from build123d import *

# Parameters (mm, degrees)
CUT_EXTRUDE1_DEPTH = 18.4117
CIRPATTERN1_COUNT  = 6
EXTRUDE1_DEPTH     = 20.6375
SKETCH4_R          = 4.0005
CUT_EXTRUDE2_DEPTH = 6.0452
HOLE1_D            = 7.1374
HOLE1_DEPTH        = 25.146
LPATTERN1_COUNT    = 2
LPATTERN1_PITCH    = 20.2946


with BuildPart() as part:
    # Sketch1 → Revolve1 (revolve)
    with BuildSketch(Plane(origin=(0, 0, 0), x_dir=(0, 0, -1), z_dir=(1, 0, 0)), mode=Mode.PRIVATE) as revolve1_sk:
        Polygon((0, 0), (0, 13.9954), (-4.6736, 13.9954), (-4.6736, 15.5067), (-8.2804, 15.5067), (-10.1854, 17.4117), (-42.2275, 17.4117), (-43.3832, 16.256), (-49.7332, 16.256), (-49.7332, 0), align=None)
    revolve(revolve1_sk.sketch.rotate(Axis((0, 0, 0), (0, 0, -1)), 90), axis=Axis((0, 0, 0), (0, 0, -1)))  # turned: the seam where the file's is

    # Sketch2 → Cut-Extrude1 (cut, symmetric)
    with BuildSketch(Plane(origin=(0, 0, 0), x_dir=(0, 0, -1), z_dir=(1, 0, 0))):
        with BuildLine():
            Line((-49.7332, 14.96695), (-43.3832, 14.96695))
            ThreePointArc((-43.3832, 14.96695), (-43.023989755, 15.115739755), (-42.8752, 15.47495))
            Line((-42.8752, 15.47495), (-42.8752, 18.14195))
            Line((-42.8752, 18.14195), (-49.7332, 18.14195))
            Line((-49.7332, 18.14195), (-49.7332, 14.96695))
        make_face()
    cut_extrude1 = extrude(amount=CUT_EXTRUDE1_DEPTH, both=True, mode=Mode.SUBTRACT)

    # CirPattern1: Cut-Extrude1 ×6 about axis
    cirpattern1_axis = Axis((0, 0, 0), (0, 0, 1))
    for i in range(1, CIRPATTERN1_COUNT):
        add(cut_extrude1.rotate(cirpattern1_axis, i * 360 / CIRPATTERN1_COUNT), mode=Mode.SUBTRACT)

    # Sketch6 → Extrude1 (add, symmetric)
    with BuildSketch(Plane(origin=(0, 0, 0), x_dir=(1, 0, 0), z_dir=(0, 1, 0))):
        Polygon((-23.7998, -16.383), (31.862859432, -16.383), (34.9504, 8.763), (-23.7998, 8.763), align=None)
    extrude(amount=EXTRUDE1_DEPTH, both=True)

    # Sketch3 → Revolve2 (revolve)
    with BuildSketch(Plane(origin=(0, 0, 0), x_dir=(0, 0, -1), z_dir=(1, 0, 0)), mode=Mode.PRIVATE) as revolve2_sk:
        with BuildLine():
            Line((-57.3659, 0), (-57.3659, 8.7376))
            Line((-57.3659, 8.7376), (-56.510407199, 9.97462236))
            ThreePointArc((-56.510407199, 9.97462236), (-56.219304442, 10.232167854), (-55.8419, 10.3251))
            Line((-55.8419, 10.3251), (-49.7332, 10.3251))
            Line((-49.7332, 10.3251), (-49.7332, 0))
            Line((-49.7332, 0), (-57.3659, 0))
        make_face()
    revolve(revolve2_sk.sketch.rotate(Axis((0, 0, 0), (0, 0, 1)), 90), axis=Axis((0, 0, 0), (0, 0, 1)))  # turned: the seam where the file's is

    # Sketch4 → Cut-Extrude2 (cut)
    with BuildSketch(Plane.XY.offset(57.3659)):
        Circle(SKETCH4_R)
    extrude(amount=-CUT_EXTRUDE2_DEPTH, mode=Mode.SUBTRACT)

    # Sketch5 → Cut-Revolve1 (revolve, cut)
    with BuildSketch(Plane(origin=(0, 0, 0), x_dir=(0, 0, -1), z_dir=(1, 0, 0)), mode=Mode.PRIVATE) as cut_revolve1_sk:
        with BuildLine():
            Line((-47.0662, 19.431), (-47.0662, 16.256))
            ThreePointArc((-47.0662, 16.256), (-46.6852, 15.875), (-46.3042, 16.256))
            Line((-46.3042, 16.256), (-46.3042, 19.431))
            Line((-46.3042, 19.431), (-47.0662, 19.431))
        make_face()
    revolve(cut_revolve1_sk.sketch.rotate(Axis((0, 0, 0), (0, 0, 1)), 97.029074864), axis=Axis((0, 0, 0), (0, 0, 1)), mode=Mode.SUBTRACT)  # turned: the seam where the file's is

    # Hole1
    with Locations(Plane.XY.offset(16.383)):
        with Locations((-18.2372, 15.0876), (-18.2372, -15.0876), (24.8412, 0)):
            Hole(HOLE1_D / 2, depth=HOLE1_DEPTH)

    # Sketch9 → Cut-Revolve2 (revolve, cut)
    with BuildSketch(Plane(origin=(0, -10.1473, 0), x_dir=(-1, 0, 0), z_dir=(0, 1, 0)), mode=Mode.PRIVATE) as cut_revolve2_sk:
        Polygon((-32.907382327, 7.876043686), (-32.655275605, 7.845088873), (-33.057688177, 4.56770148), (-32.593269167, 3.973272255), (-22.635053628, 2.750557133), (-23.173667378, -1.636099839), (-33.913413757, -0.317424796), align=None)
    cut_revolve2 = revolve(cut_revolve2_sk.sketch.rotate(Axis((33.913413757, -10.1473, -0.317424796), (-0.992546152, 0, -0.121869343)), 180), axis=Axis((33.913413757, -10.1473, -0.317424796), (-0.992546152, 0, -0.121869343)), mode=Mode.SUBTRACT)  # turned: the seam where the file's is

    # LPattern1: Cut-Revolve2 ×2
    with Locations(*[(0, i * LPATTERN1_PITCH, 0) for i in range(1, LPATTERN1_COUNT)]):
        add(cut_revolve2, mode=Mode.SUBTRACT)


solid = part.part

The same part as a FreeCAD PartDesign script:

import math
import FreeCAD as App
import Part
import Sketcher
Q = App.Units.Quantity

doc = App.newDocument("Part")
body = doc.addObject("PartDesign::Body", "Body")

# Sketch on YZ plane
sketch1 = body.newObject("Sketcher::SketchObject", "Sketch")
sketch1.AttachmentSupport = (doc.getObject("YZ_Plane"), [""])
sketch1.MapMode = "FlatFace"
sketch1.addGeometry(Part.LineSegment(App.Vector(0, 0, 0), App.Vector(14, 0, 0)), False)
sketch1.addGeometry(Part.LineSegment(App.Vector(14, 0, 0), App.Vector(14, 4.7, 0)), False)
sketch1.addGeometry(Part.LineSegment(App.Vector(14, 4.7, 0), App.Vector(15.5, 4.7, 0)), False)
sketch1.addGeometry(Part.LineSegment(App.Vector(15.5, 4.7, 0), App.Vector(15.5, 8.3, 0)), False)
sketch1.addGeometry(Part.LineSegment(App.Vector(15.5, 8.3, 0), App.Vector(17.4, 10.2, 0)), False)
sketch1.addGeometry(Part.LineSegment(App.Vector(17.4, 10.2, 0), App.Vector(17.4, 42.2, 0)), False)
sketch1.addGeometry(Part.LineSegment(App.Vector(17.4, 42.2, 0), App.Vector(16.3, 43.4, 0)), False)
sketch1.addGeometry(Part.LineSegment(App.Vector(16.3, 43.4, 0), App.Vector(16.3, 49.7, 0)), False)
sketch1.addGeometry(Part.LineSegment(App.Vector(16.3, 49.7, 0), App.Vector(0, 49.7, 0)), False)
sketch1.addGeometry(Part.LineSegment(App.Vector(0, 49.7, 0), App.Vector(0, 0, 0)), False)
sketch1.addConstraint(Sketcher.Constraint("Coincident", 0, 2, 1, 1))
sketch1.addConstraint(Sketcher.Constraint("Coincident", 1, 2, 2, 1))
sketch1.addConstraint(Sketcher.Constraint("Coincident", 2, 2, 3, 1))
sketch1.addConstraint(Sketcher.Constraint("Coincident", 3, 2, 4, 1))
sketch1.addConstraint(Sketcher.Constraint("Coincident", 4, 2, 5, 1))
sketch1.addConstraint(Sketcher.Constraint("Coincident", 5, 2, 6, 1))
sketch1.addConstraint(Sketcher.Constraint("Coincident", 6, 2, 7, 1))
sketch1.addConstraint(Sketcher.Constraint("Coincident", 7, 2, 8, 1))
sketch1.addConstraint(Sketcher.Constraint("Coincident", 8, 2, 9, 1))
sketch1.addConstraint(Sketcher.Constraint("Coincident", 9, 2, 0, 1))
sketch1.addConstraint(Sketcher.Constraint("Horizontal", 0))
sketch1.addConstraint(Sketcher.Constraint("Vertical", 1))
sketch1.addConstraint(Sketcher.Constraint("Horizontal", 2))
sketch1.addConstraint(Sketcher.Constraint("Vertical", 3))
sketch1.addConstraint(Sketcher.Constraint("Vertical", 5))
sketch1.addConstraint(Sketcher.Constraint("Vertical", 7))
sketch1.addConstraint(Sketcher.Constraint("Horizontal", 8))
sketch1.addConstraint(Sketcher.Constraint("Vertical", 9))
sketch1.addConstraint(Sketcher.Constraint("Coincident", 9, 2, -1, 1))
sketch1.addConstraint(Sketcher.Constraint("Perpendicular", 4, 6))
sketch1.addConstraint(Sketcher.Constraint("Angle", 4, Q("45 deg")))
sketch1.addConstraint(Sketcher.Constraint("DistanceX", 8, 2, 8, 1, Q("0.64 in")))
sketch1.addConstraint(Sketcher.Constraint("DistanceY", 7, 1, 7, 2, Q("0.25 in")))
sketch1.addConstraint(Sketcher.Constraint("DistanceX", 0, 1, 0, 2, Q("0.551 in")))
sketch1.addConstraint(Sketcher.Constraint("DistanceY", 1, 1, 1, 2, Q("0.184 in")))
sketch1.addConstraint(Sketcher.Constraint("DistanceY", 3, 1, 3, 2, Q("0.142 in")))
sketch1.addConstraint(Sketcher.Constraint("DistanceY", 9, 2, 9, 1, Q("1.958 in")))
sketch1.addConstraint(Sketcher.Constraint("DistanceX", 2, 1, 2, 2, Q("0.0595 in")))
sketch1.addConstraint(Sketcher.Constraint("DistanceY", 5, 1, 5, 2, Q("1.2615 in")))
revolution = body.newObject("PartDesign::Revolution", "Revolution")
revolution.Profile = sketch1
revolution.ReferenceAxis = (sketch1, ["V_Axis"])
revolution.Angle = 360

# Sketch on YZ plane
sketch2 = body.newObject("Sketcher::SketchObject", "Sketch001")
sketch2.AttachmentSupport = (doc.getObject("YZ_Plane"), [""])
sketch2.MapMode = "FlatFace"
sketch2.addGeometry(Part.LineSegment(App.Vector(15, 49.7, 0), App.Vector(15, 43.4, 0)), False)
sketch2.addGeometry(Part.ArcOfCircle(Part.Circle(App.Vector(15.5, 43.4, 0), App.Vector(0, 0, 1), 0.5), math.radians(180), math.radians(270)), False)
sketch2.addGeometry(Part.LineSegment(App.Vector(15.5, 42.9, 0), App.Vector(18.1, 42.9, 0)), False)
sketch2.addGeometry(Part.LineSegment(App.Vector(18.1, 42.9, 0), App.Vector(18.1, 49.7, 0)), False)
sketch2.addGeometry(Part.LineSegment(App.Vector(18.1, 49.7, 0), App.Vector(15, 49.7, 0)), False)
sketch2.addConstraint(Sketcher.Constraint("Tangent", 0, 2, 1, 1))
sketch2.addConstraint(Sketcher.Constraint("Tangent", 1, 2, 2, 1))
sketch2.addConstraint(Sketcher.Constraint("Coincident", 2, 2, 3, 1))
sketch2.addConstraint(Sketcher.Constraint("Coincident", 3, 2, 4, 1))
sketch2.addConstraint(Sketcher.Constraint("Coincident", 4, 2, 0, 1))
sketch2.addConstraint(Sketcher.Constraint("Vertical", 0))
sketch2.addConstraint(Sketcher.Constraint("Horizontal", 2))
sketch2.addConstraint(Sketcher.Constraint("Vertical", 3))
sketch2.addConstraint(Sketcher.Constraint("Horizontal", 4))
sketch2.addConstraint(Sketcher.Constraint("Radius", 1, Q("0.02 in")))
sketch2.addConstraint(Sketcher.Constraint("DistanceY", 0, 2, 0, 1, Q("0.25 in")))
sketch2.addConstraint(Sketcher.Constraint("DistanceX", 2, 1, 2, 2, Q("0.105 in")))
sketch2.addConstraint(Sketcher.Constraint("DistanceY", -1, 1, 1, 3, Q("1.708 in")))
sketch2.addConstraint(Sketcher.Constraint("DistanceX", -1, 1, 1, 3, 15.47495))
pocket1 = body.newObject("PartDesign::Pocket", "Pocket")
pocket1.Profile = sketch2
pocket1.Length = 36.8234
pocket1.Midplane = True
doc.recompute()

polarpattern = body.newObject("PartDesign::PolarPattern", "PolarPattern")
polarpattern.Originals = [pocket1]
polarpattern.Axis = (doc.getObject("Z_Axis"), [""])
polarpattern.Angle = 360
polarpattern.Occurrences = 6
body.Tip = polarpattern

# Sketch on XZ plane
sketch3 = body.newObject("Sketcher::SketchObject", "Sketch002")
sketch3.AttachmentSupport = (doc.getObject("XZ_Plane"), [""])
sketch3.MapMode = "FlatFace"
sketch3.addGeometry(Part.LineSegment(App.Vector(-24, 16, 0), App.Vector(32, 16, 0)), False)
sketch3.addGeometry(Part.LineSegment(App.Vector(32, 16, 0), App.Vector(35, -9, 0)), False)
sketch3.addGeometry(Part.LineSegment(App.Vector(35, -9, 0), App.Vector(-24, -9, 0)), False)
sketch3.addGeometry(Part.LineSegment(App.Vector(-24, -9, 0), App.Vector(-24, 16, 0)), False)
sketch3.addConstraint(Sketcher.Constraint("Coincident", 0, 2, 1, 1))
sketch3.addConstraint(Sketcher.Constraint("Coincident", 1, 2, 2, 1))
sketch3.addConstraint(Sketcher.Constraint("Coincident", 2, 2, 3, 1))
sketch3.addConstraint(Sketcher.Constraint("Coincident", 3, 2, 0, 1))
sketch3.addConstraint(Sketcher.Constraint("Horizontal", 0))
sketch3.addConstraint(Sketcher.Constraint("Horizontal", 2))
sketch3.addConstraint(Sketcher.Constraint("Vertical", 3))
sketch3.addConstraint(Sketcher.Constraint("Angle", 1, Q("-83 deg")))
sketch3.addConstraint(Sketcher.Constraint("DistanceY", 3, 1, 3, 2, Q("0.99 in")))
sketch3.addConstraint(Sketcher.Constraint("DistanceX", 2, 2, 2, 1, Q("2.313 in")))
sketch3.addConstraint(Sketcher.Constraint("DistanceY", -1, 1, 0, 2, Q("0.645 in")))
sketch3.addConstraint(Sketcher.Constraint("DistanceX", -1, 1, 1, 2, Q("1.376 in")))
pad1 = body.newObject("PartDesign::Pad", "Pad")
pad1.Profile = sketch3
pad1.Length = Q("1.625 in")
pad1.Midplane = True

# Sketch on YZ plane
sketch4 = body.newObject("Sketcher::SketchObject", "Sketch003")
sketch4.AttachmentSupport = (doc.getObject("YZ_Plane"), [""])
sketch4.MapMode = "FlatFace"
sketch4.addGeometry(Part.LineSegment(App.Vector(8.7, 57.4, 0), App.Vector(0, 57.4, 0)), False)
sketch4.addGeometry(Part.LineSegment(App.Vector(0, 57.4, 0), App.Vector(0, 49.7, 0)), False)
sketch4.addGeometry(Part.LineSegment(App.Vector(0, 49.7, 0), App.Vector(10.3, 49.7, 0)), False)
sketch4.addGeometry(Part.LineSegment(App.Vector(10.3, 49.7, 0), App.Vector(10.3, 55.8, 0)), False)
sketch4.addGeometry(Part.ArcOfCircle(Part.Circle(App.Vector(9.5, 55.8, 0), App.Vector(0, 0, 1), 0.8), math.radians(0), math.radians(55)), False)
sketch4.addGeometry(Part.LineSegment(App.Vector(10, 56.5, 0), App.Vector(8.7, 57.4, 0)), False)
sketch4.addConstraint(Sketcher.Constraint("Coincident", 0, 2, 1, 1))
sketch4.addConstraint(Sketcher.Constraint("Coincident", 1, 2, 2, 1))
sketch4.addConstraint(Sketcher.Constraint("Coincident", 2, 2, 3, 1))
sketch4.addConstraint(Sketcher.Constraint("Tangent", 3, 2, 4, 1))
sketch4.addConstraint(Sketcher.Constraint("Tangent", 4, 2, 5, 1))
sketch4.addConstraint(Sketcher.Constraint("Coincident", 5, 2, 0, 1))
sketch4.addConstraint(Sketcher.Constraint("Horizontal", 0))
sketch4.addConstraint(Sketcher.Constraint("Vertical", 1))
sketch4.addConstraint(Sketcher.Constraint("Horizontal", 2))
sketch4.addConstraint(Sketcher.Constraint("Vertical", 3))
sketch4.addConstraint(Sketcher.Constraint("PointOnObject", 0, 2, -2))
sketch4.addConstraint(Sketcher.Constraint("Radius", 4, Q("0.032 in")))
sketch4.addConstraint(Sketcher.Constraint("DistanceX", 0, 2, 0, 1, Q("0.344 in")))
sketch4.addConstraint(Sketcher.Constraint("DistanceY", 4, 3, 0, 2, Q("0.06 in")))
sketch4.addConstraint(Sketcher.Constraint("DistanceX", 2, 1, 2, 2, Q("0.4065 in")))
sketch4.addConstraint(Sketcher.Constraint("DistanceY", 1, 2, 1, 1, Q("0.3005 in")))
sketch4.addConstraint(Sketcher.Constraint("DistanceY", -1, 1, 1, 2, Q("1.958 in")))
revolution2 = body.newObject("PartDesign::Revolution", "Revolution001")
revolution2.Profile = sketch4
revolution2.ReferenceAxis = (sketch4, ["V_Axis"])
revolution2.Angle = 360

# Sketch on XY plane
sketch5 = body.newObject("Sketcher::SketchObject", "Sketch004")
sketch5.AttachmentSupport = (doc.getObject("XY_Plane"), [""])
sketch5.MapMode = "FlatFace"
sketch5.AttachmentOffset = App.Placement(App.Vector(0, 0, 2.2585 * 25.4), App.Rotation())
sketch5.addGeometry(Part.Circle(App.Vector(0, 0, 0), App.Vector(0, 0, 1), 4), False)
sketch5.addConstraint(Sketcher.Constraint("Coincident", 0, 3, -1, 1))
sketch5.addConstraint(Sketcher.Constraint("Diameter", 0, Q("0.315 in")))
pocket2 = body.newObject("PartDesign::Pocket", "Pocket001")
pocket2.Profile = sketch5
pocket2.Length = Q("0.238 in")

# Sketch on YZ plane
sketch6 = body.newObject("Sketcher::SketchObject", "Sketch005")
sketch6.AttachmentSupport = (doc.getObject("YZ_Plane"), [""])
sketch6.MapMode = "FlatFace"
sketch6.addGeometry(Part.LineSegment(App.Vector(19.43, 47.07, 0), App.Vector(16.26, 47.07, 0)), False)
sketch6.addGeometry(Part.ArcOfCircle(Part.Circle(App.Vector(16.26, 46.69, 0), App.Vector(0, 0, 1), 0.38), math.radians(90), math.radians(270)), False)
sketch6.addGeometry(Part.LineSegment(App.Vector(16.26, 46.3, 0), App.Vector(19.43, 46.3, 0)), False)
sketch6.addGeometry(Part.LineSegment(App.Vector(19.43, 46.3, 0), App.Vector(19.43, 47.07, 0)), False)
sketch6.addConstraint(Sketcher.Constraint("Tangent", 0, 2, 1, 1))
sketch6.addConstraint(Sketcher.Constraint("Tangent", 1, 2, 2, 1))
sketch6.addConstraint(Sketcher.Constraint("Coincident", 2, 2, 3, 1))
sketch6.addConstraint(Sketcher.Constraint("Coincident", 3, 2, 0, 1))
sketch6.addConstraint(Sketcher.Constraint("Horizontal", 0))
sketch6.addConstraint(Sketcher.Constraint("Horizontal", 2))
sketch6.addConstraint(Sketcher.Constraint("Vertical", 3))
sketch6.addConstraint(Sketcher.Constraint("Radius", 1, Q("0.015 in")))
sketch6.addConstraint(Sketcher.Constraint("DistanceX", 0, 2, 0, 1, Q("0.125 in")))
sketch6.addConstraint(Sketcher.Constraint("DistanceX", -1, 1, 1, 3, Q("0.64 in")))
sketch6.addConstraint(Sketcher.Constraint("DistanceY", -1, 1, 1, 3, Q("1.838 in")))
groove = body.newObject("PartDesign::Groove", "Groove")
groove.Profile = sketch6
groove.ReferenceAxis = (sketch6, ["V_Axis"])
groove.Angle = 360

# Sketch on XY plane
sketch7 = body.newObject("Sketcher::SketchObject", "Sketch006")
sketch7.AttachmentSupport = (doc.getObject("XY_Plane"), [""])
sketch7.MapMode = "FlatFace"
sketch7.AttachmentOffset = App.Placement(App.Vector(0, 0, 0.645 * 25.4), App.Rotation())
sketch7.addGeometry(Part.Circle(App.Vector(-18.2, 15.1, 0), App.Vector(0, 0, 1), 3.6), False)
sketch7.addGeometry(Part.Circle(App.Vector(-18.2, -15.1, 0), App.Vector(0, 0, 1), 3.6), False)
sketch7.addGeometry(Part.Circle(App.Vector(24.8, 0, 0), App.Vector(0, 0, 1), 3.6), False)
sketch7.addConstraint(Sketcher.Constraint("Equal", 0, 1))
sketch7.addConstraint(Sketcher.Constraint("Equal", 1, 2))
sketch7.addConstraint(Sketcher.Constraint("Symmetric", 0, 3, 1, 3, -1))
sketch7.addConstraint(Sketcher.Constraint("PointOnObject", 2, 3, -1))
sketch7.addConstraint(Sketcher.Constraint("Diameter", 0, Q("0.281 in")))
sketch7.addConstraint(Sketcher.Constraint("DistanceX", 0, 3, -1, 1, Q("0.718 in")))
sketch7.addConstraint(Sketcher.Constraint("DistanceY", -1, 1, 0, 3, Q("0.594 in")))
sketch7.addConstraint(Sketcher.Constraint("DistanceX", -1, 1, 2, 3, Q("0.978 in")))
doc.recompute()
hole = body.newObject("PartDesign::Hole", "Hole")
hole.Profile = sketch7
hole.ThreadType = "None"
hole.Diameter = Q("0.281 in")
hole.DepthType = "Dimension"
hole.Depth = Q("0.99 in")
hole.DrillPoint = "Flat"

# Sketch on XZ plane
sketch8 = body.newObject("Sketcher::SketchObject", "Sketch007")
sketch8.AttachmentSupport = (doc.getObject("XZ_Plane"), [""])
sketch8.MapMode = "FlatFace"
sketch8.AttachmentOffset = App.Placement(App.Vector(0, 0, 0.3995 * 25.4), App.Rotation())
sketch8.addGeometry(Part.LineSegment(App.Vector(32.66, 7.85, 0), App.Vector(32.91, 7.88, 0)), False)
sketch8.addGeometry(Part.LineSegment(App.Vector(32.91, 7.88, 0), App.Vector(33.91, -0.32, 0)), False)
sketch8.addGeometry(Part.LineSegment(App.Vector(33.91, -0.32, 0), App.Vector(23.17, -1.64, 0)), False)
sketch8.addGeometry(Part.LineSegment(App.Vector(23.17, -1.64, 0), App.Vector(22.64, 2.75, 0)), False)
sketch8.addGeometry(Part.LineSegment(App.Vector(22.64, 2.75, 0), App.Vector(32.59, 3.97, 0)), False)
sketch8.addGeometry(Part.LineSegment(App.Vector(32.59, 3.97, 0), App.Vector(33.06, 4.57, 0)), False)
sketch8.addGeometry(Part.LineSegment(App.Vector(33.06, 4.57, 0), App.Vector(32.66, 7.85, 0)), False)
sketch8.addGeometry(Part.LineSegment(App.Vector(33.91, -0.32, 0), App.Vector(23.17, -1.64, 0)), True)  # axis
sketch8.addConstraint(Sketcher.Constraint("Coincident", 0, 2, 1, 1))
sketch8.addConstraint(Sketcher.Constraint("Coincident", 1, 2, 2, 1))
sketch8.addConstraint(Sketcher.Constraint("Coincident", 2, 2, 3, 1))
sketch8.addConstraint(Sketcher.Constraint("Coincident", 3, 2, 4, 1))
sketch8.addConstraint(Sketcher.Constraint("Coincident", 4, 2, 5, 1))
sketch8.addConstraint(Sketcher.Constraint("Coincident", 5, 2, 6, 1))
sketch8.addConstraint(Sketcher.Constraint("Coincident", 6, 2, 0, 1))
sketch8.addConstraint(Sketcher.Constraint("Coincident", 7, 1, 1, 2))
sketch8.addConstraint(Sketcher.Constraint("Coincident", 7, 2, 2, 2))
sketch8.addConstraint(Sketcher.Constraint("Perpendicular", 0, 1))
sketch8.addConstraint(Sketcher.Constraint("Perpendicular", 1, 2))
sketch8.addConstraint(Sketcher.Constraint("Perpendicular", 2, 3))
sketch8.addConstraint(Sketcher.Constraint("Perpendicular", 3, 4))
sketch8.addConstraint(Sketcher.Constraint("Perpendicular", 4, 6))
sketch8.addConstraint(Sketcher.Constraint("Angle", 0, Q("7 deg")))
sketch8.addConstraint(Sketcher.Constraint("Angle", 5, Q("52 deg")))
sketch8.addConstraint(Sketcher.Constraint("Distance", 0, Q("0.01 in")))
sketch8.addConstraint(Sketcher.Constraint("Distance", 6, Q("0.13 in")))
sketch8.addConstraint(Sketcher.Constraint("Distance", 1, Q("0.325 in")))
sketch8.addConstraint(Sketcher.Constraint("Distance", 2, Q("0.426 in")))
sketch8.addConstraint(Sketcher.Constraint("Distance", 3, Q("0.174 in")))
sketch8.addConstraint(Sketcher.Constraint("DistanceY", 2, 2, -1, 1, 1.6361))
sketch8.addConstraint(Sketcher.Constraint("DistanceX", -1, 1, 4, 2, 32.593269))
groove2 = body.newObject("PartDesign::Groove", "Groove001")
groove2.Profile = sketch8
groove2.ReferenceAxis = (sketch8, ["Axis0"])
groove2.Angle = 360
doc.recompute()

linearpattern = body.newObject("PartDesign::LinearPattern", "LinearPattern")
linearpattern.Originals = [groove2]
linearpattern.Direction = (doc.getObject("Y_Axis"), [""])
linearpattern.Mode = "offset"
linearpattern.Offset = Q("0.799 in")
linearpattern.Occurrences = 2
body.Tip = linearpattern

doc.recompute()
